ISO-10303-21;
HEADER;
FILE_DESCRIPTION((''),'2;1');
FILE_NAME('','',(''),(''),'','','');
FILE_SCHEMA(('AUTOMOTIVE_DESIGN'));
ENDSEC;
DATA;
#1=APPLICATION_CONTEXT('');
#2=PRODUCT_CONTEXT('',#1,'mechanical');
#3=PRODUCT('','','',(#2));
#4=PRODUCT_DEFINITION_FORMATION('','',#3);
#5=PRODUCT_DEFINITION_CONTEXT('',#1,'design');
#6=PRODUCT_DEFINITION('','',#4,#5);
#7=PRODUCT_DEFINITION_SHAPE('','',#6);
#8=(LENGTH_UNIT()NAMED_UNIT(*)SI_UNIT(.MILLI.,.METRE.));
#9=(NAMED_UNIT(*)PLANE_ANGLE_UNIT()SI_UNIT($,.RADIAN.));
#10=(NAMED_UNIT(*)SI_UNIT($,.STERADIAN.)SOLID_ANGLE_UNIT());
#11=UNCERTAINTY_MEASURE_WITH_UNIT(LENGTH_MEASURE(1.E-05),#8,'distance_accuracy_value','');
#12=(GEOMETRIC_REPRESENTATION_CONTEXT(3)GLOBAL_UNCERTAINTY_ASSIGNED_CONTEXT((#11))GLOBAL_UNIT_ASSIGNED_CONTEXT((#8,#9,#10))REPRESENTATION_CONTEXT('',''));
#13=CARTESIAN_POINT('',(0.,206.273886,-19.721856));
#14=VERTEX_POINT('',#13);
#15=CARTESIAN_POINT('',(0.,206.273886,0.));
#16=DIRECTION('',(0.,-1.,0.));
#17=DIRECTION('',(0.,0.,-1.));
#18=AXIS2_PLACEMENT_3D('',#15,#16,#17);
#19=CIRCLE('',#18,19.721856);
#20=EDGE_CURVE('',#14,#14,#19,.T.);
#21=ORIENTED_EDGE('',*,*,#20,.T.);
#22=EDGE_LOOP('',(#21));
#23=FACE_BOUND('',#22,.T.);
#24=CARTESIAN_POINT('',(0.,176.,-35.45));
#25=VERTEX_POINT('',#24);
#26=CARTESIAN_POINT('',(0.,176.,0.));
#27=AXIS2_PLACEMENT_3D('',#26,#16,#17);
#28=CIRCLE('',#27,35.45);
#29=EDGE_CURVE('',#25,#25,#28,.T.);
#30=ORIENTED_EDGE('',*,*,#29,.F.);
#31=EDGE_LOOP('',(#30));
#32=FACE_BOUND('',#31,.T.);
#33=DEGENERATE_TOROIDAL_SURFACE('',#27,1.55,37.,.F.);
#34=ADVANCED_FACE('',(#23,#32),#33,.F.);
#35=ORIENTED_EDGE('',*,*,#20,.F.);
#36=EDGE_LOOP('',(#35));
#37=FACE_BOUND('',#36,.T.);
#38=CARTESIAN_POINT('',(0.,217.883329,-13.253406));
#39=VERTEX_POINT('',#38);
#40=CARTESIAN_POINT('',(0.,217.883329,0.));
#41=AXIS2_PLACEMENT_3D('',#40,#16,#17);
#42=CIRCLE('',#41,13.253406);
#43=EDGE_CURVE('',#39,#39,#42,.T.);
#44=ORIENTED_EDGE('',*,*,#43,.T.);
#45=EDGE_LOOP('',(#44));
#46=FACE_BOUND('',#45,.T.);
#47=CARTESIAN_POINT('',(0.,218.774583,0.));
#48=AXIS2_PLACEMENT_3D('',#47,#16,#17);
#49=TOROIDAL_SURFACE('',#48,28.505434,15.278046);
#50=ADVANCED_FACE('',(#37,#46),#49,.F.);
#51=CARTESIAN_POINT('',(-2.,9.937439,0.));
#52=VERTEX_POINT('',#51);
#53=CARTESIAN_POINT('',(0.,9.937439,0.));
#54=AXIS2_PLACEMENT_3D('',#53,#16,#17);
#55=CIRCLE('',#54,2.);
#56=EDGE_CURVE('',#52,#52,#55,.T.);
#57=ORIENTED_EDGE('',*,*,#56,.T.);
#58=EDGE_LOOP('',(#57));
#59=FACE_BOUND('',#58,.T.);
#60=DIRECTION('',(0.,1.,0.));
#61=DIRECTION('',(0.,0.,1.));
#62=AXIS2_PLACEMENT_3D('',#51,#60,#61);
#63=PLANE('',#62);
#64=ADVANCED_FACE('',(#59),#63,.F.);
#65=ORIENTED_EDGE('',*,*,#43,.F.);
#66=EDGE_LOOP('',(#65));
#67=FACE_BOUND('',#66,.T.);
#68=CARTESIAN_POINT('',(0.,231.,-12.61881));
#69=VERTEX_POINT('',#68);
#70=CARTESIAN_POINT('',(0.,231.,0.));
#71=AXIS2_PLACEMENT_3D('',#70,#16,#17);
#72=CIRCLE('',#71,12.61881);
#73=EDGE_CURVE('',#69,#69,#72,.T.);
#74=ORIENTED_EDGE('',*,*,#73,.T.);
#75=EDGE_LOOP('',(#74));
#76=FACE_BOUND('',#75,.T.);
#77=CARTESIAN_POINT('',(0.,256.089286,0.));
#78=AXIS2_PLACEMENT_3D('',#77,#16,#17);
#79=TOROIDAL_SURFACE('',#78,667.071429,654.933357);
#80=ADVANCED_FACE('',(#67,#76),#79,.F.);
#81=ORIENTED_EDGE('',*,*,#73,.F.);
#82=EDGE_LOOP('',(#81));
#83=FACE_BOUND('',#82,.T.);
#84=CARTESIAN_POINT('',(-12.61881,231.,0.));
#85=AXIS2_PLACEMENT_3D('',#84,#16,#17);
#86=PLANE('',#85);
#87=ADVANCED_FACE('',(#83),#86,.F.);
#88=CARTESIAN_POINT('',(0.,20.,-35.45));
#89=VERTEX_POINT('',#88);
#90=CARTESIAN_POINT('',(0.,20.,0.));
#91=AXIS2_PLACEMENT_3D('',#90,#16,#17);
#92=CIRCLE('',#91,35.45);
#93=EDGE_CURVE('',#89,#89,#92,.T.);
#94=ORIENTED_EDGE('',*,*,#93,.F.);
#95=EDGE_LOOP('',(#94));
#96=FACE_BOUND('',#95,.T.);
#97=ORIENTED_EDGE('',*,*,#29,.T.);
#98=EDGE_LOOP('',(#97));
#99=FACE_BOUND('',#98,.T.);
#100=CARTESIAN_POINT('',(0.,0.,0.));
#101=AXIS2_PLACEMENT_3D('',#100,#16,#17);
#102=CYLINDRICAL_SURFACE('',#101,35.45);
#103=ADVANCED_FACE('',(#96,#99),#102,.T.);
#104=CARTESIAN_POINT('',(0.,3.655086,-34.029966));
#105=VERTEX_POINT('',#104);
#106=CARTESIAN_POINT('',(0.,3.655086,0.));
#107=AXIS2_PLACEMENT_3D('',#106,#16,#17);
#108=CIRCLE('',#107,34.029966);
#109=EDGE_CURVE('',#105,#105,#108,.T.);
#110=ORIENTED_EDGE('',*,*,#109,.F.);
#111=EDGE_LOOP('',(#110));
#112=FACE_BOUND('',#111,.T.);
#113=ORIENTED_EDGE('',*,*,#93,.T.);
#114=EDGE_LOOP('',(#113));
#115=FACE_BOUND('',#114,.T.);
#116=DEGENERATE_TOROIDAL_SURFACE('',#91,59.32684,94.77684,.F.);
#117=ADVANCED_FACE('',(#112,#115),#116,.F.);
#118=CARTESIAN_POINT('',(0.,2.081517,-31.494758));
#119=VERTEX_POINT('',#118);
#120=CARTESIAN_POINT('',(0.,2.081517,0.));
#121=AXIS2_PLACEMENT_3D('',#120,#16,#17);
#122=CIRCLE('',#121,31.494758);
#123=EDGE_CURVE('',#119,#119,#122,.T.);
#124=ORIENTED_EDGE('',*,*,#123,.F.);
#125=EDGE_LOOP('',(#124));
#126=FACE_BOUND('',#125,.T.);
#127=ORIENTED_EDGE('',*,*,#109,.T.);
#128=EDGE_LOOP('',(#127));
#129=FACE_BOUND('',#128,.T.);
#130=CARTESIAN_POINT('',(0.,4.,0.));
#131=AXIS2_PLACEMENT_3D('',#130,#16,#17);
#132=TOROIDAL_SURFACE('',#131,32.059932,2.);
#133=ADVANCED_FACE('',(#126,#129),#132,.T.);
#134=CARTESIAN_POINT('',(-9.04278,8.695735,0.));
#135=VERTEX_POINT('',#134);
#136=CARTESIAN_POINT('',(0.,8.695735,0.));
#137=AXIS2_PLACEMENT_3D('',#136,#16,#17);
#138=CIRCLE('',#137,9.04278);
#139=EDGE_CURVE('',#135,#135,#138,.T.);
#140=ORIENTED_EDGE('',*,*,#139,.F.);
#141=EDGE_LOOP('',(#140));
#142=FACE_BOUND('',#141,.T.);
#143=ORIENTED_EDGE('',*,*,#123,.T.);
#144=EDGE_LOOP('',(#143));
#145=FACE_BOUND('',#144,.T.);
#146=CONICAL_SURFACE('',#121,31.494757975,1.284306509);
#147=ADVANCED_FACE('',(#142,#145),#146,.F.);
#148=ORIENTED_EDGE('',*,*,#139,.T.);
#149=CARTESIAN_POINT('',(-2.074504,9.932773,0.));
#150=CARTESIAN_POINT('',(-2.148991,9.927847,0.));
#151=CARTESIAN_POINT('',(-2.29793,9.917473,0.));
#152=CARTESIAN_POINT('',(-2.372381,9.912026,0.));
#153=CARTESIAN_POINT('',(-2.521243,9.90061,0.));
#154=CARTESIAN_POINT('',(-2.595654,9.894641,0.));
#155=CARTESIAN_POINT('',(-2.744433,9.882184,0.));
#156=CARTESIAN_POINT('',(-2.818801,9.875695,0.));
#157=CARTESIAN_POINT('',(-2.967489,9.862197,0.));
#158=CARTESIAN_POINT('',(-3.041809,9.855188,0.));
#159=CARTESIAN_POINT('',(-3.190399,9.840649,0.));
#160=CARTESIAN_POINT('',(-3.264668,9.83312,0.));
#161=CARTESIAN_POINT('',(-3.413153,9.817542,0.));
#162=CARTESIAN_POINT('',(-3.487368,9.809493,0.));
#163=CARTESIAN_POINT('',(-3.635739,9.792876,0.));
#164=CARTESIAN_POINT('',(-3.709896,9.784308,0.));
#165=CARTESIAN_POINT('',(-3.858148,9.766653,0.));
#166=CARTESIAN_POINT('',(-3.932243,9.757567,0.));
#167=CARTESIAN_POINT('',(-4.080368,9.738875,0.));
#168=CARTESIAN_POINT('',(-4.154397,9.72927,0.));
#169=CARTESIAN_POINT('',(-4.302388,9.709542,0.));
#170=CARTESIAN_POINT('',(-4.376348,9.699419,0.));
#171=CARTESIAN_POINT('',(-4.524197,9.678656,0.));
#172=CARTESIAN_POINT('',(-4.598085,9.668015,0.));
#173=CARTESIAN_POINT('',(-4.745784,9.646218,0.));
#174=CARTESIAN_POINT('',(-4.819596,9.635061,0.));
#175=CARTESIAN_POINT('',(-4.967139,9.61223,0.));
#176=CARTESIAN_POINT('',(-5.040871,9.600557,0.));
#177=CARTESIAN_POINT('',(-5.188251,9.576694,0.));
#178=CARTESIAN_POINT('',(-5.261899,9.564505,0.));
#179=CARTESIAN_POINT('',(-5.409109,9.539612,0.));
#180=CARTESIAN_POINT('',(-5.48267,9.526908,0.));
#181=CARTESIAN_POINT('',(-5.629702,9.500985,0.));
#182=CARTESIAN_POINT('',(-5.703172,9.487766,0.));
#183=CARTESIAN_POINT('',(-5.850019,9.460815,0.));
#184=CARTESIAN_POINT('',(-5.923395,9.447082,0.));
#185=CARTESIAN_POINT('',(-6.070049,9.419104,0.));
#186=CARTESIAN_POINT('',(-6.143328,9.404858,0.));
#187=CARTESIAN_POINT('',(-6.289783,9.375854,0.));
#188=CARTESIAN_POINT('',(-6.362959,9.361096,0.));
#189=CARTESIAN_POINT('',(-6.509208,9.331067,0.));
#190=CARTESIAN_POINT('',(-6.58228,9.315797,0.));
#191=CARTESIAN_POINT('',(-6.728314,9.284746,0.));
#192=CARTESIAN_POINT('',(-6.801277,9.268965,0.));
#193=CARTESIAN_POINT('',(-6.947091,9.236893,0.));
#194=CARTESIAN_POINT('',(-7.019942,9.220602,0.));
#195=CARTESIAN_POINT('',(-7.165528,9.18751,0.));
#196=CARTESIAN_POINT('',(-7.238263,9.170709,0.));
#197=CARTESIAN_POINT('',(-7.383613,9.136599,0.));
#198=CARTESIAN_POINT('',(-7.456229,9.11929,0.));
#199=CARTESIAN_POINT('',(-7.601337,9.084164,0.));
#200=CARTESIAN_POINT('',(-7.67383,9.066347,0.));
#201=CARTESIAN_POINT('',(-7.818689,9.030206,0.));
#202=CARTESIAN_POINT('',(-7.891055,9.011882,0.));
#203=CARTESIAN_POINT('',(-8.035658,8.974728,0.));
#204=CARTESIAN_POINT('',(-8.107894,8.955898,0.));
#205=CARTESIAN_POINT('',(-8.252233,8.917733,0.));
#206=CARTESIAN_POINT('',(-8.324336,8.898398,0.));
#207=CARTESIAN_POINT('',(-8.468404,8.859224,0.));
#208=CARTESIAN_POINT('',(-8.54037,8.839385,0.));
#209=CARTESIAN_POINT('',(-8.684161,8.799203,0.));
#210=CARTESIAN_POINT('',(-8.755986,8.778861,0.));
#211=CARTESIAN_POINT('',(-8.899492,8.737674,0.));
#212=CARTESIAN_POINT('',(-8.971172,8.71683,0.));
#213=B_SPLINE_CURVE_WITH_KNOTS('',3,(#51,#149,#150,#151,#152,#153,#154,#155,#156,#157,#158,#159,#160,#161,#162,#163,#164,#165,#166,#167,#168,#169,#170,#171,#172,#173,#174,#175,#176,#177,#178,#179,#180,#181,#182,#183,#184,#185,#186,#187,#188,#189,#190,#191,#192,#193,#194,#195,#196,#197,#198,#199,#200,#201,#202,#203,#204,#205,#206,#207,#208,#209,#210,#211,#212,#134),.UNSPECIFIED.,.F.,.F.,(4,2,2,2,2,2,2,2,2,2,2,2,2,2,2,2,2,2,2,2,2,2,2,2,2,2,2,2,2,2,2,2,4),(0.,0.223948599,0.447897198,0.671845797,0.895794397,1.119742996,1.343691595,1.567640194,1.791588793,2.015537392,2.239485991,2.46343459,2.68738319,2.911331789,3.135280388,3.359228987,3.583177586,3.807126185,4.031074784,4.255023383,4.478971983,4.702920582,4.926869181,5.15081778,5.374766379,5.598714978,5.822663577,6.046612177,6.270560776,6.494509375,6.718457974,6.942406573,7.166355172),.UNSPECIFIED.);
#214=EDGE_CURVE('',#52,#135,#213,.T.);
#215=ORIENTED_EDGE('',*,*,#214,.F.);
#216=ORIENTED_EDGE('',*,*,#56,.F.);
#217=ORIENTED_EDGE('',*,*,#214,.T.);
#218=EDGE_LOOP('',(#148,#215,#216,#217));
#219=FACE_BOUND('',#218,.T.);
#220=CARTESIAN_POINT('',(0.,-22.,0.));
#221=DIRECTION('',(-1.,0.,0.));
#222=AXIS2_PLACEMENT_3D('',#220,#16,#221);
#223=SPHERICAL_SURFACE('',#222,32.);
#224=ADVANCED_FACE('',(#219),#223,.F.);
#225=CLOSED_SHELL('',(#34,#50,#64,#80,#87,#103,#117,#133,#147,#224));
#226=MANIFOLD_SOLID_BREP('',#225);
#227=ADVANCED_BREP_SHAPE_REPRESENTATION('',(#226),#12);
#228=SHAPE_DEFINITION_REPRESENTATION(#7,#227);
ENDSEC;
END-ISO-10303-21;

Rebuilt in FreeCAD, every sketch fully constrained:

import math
import FreeCAD as App
import Part
import Sketcher
Q = App.Units.Quantity

doc = App.newDocument("Part")
params = doc.addObject("Spreadsheet::Sheet", "Params")
for row, (alias, value) in enumerate([
    ("sketch1_radius", "37 mm"),
    ("sketch1_radius2", "2 mm"),
    ("sketch1_radius3", "32 mm"),
    ("sketch1_width", "2 mm"),
    ("sketch1_height", "156 mm"),
    ("revolution_angle", "360 deg"),
], start=1):
    params.set(f"A{row}", alias)
    params.set(f"B{row}", "=" + value)
    params.setAlias(f"B{row}", alias)

body = doc.addObject("PartDesign::Body", "Body")

# Sketch on XY plane
sketch1 = body.newObject("Sketcher::SketchObject", "Sketch")
sketch1.AttachmentSupport = (doc.getObject("XY_Plane"), [""])
sketch1.MapMode = "FlatFace"
sketch1.addGeometry(Part.LineSegment(App.Vector(-2, 9.9, 0), App.Vector(0, 9.9, 0)), False)
sketch1.addGeometry(Part.LineSegment(App.Vector(0, 9.9, 0), App.Vector(0, 231, 0)), False)
sketch1.addGeometry(Part.LineSegment(App.Vector(0, 231, 0), App.Vector(-12.6, 231, 0)), False)
sketch1.addGeometry(Part.ArcOfCircle(Part.Circle(App.Vector(-667.1, 256.1, 0), App.Vector(0, 0, 1), 654.9), math.radians(-3.34), math.radians(-2.2)), False)
sketch1.addGeometry(Part.ArcOfCircle(Part.Circle(App.Vector(-28.5, 218.8, 0), App.Vector(0, 0, 1), 15.3), math.radians(-55), math.radians(-3)), False)
sketch1.addGeometry(Part.ArcOfCircle(Part.Circle(App.Vector(1.6, 176, 0), App.Vector(0, 0, 1), 37), math.radians(125), math.radians(180)), False)
sketch1.addGeometry(Part.LineSegment(App.Vector(-35.5, 176, 0), App.Vector(-35.5, 20, 0)), False)
sketch1.addGeometry(Part.ArcOfCircle(Part.Circle(App.Vector(59.3, 20, 0), App.Vector(0, 0, 1), 94.8), math.radians(-180), math.radians(-170.07)), False)
sketch1.addGeometry(Part.ArcOfCircle(Part.Circle(App.Vector(-32.1, 4, 0), App.Vector(0, 0, 1), 2), math.radians(-170), math.radians(-74)), False)
sketch1.addGeometry(Part.LineSegment(App.Vector(-31.5, 2.1, 0), App.Vector(-9, 8.7, 0)), False)
sketch1.addGeometry(Part.ArcOfCircle(Part.Circle(App.Vector(0, -22, 0), App.Vector(0, 0, 1), 32), math.radians(93.58), math.radians(106.41)), False)
sketch1.addConstraint(Sketcher.Constraint("Coincident", 0, 2, 1, 1))
sketch1.addConstraint(Sketcher.Constraint("Coincident", 1, 2, 2, 1))
sketch1.addConstraint(Sketcher.Constraint("Coincident", 2, 2, 3, 2))
sketch1.addConstraint(Sketcher.Constraint("Tangent", 3, 1, 4, 2))
sketch1.addConstraint(Sketcher.Constraint("Tangent", 4, 1, 5, 1))
sketch1.addConstraint(Sketcher.Constraint("Tangent", 5, 2, 6, 1))
sketch1.addConstraint(Sketcher.Constraint("Tangent", 6, 2, 7, 1))
sketch1.addConstraint(Sketcher.Constraint("Tangent", 7, 2, 8, 1))
sketch1.addConstraint(Sketcher.Constraint("Tangent", 8, 2, 9, 1))
sketch1.addConstraint(Sketcher.Constraint("Tangent", 9, 2, 10, 2))
sketch1.addConstraint(Sketcher.Constraint("Coincident", 10, 1, 0, 1))
sketch1.addConstraint(Sketcher.Constraint("Horizontal", 0))
sketch1.addConstraint(Sketcher.Constraint("Vertical", 1))
sketch1.addConstraint(Sketcher.Constraint("Horizontal", 2))
sketch1.addConstraint(Sketcher.Constraint("Vertical", 6))
sketch1.addConstraint(Sketcher.Constraint("PointOnObject", 10, 3, -2))
sketch1.addConstraint(Sketcher.Constraint("PointOnObject", 0, 2, -2))
sketch1.addConstraint(Sketcher.Constraint("Radius", 5, Q("37 mm")))
sketch1.addConstraint(Sketcher.Constraint("Radius", 8, Q("2 mm")))
sketch1.addConstraint(Sketcher.Constraint("Radius", 10, Q("32 mm")))
sketch1.addConstraint(Sketcher.Constraint("DistanceX", 0, 1, 0, 2, Q("2 mm")))
sketch1.addConstraint(Sketcher.Constraint("DistanceY", 6, 2, 6, 1, Q("156 mm")))
sketch1.addConstraint(Sketcher.Constraint("DistanceY", -1, 1, 5, 3, Q("176 mm")))
sketch1.addConstraint(Sketcher.Constraint("DistanceY", -1, 1, 8, 3, Q("4 mm")))
sketch1.addConstraint(Sketcher.Constraint("DistanceY", 10, 3, -1, 1, Q("22 mm")))
sketch1.addConstraint(Sketcher.Constraint("DistanceY", -1, 1, 1, 2, Q("231 mm")))
sketch1.addConstraint(Sketcher.Constraint("DistanceX", -1, 1, 5, 3, Q("1.55 mm")))
sketch1.addConstraint(Sketcher.Constraint("Radius", 3, Q("654.93335 mm")))
sketch1.addConstraint(Sketcher.Constraint("Radius", 7, Q("94.77684 mm")))
sketch1.addConstraint(Sketcher.Constraint("Radius", 4, Q("15.278046 mm")))
sketch1.addConstraint(Sketcher.Constraint("DistanceX", 2, 2, 2, 1, Q("12.61881 mm")))
sketch1.addConstraint(Sketcher.Constraint("DistanceX", 8, 3, 4, 3, Q("3.554498 mm")))
sketch1.setExpression("Constraints[17]", "Params.sketch1_radius")
sketch1.setExpression("Constraints[18]", "Params.sketch1_radius2")
sketch1.setExpression("Constraints[19]", "Params.sketch1_radius3")
sketch1.setExpression("Constraints[20]", "Params.sketch1_width")
sketch1.setExpression("Constraints[21]", "Params.sketch1_height")
revolution = body.newObject("PartDesign::Revolution", "Revolution")
revolution.Profile = sketch1
revolution.ReferenceAxis = (sketch1, ["V_Axis"])
revolution.setExpression("Angle", "Params.revolution_angle")

doc.recompute()
